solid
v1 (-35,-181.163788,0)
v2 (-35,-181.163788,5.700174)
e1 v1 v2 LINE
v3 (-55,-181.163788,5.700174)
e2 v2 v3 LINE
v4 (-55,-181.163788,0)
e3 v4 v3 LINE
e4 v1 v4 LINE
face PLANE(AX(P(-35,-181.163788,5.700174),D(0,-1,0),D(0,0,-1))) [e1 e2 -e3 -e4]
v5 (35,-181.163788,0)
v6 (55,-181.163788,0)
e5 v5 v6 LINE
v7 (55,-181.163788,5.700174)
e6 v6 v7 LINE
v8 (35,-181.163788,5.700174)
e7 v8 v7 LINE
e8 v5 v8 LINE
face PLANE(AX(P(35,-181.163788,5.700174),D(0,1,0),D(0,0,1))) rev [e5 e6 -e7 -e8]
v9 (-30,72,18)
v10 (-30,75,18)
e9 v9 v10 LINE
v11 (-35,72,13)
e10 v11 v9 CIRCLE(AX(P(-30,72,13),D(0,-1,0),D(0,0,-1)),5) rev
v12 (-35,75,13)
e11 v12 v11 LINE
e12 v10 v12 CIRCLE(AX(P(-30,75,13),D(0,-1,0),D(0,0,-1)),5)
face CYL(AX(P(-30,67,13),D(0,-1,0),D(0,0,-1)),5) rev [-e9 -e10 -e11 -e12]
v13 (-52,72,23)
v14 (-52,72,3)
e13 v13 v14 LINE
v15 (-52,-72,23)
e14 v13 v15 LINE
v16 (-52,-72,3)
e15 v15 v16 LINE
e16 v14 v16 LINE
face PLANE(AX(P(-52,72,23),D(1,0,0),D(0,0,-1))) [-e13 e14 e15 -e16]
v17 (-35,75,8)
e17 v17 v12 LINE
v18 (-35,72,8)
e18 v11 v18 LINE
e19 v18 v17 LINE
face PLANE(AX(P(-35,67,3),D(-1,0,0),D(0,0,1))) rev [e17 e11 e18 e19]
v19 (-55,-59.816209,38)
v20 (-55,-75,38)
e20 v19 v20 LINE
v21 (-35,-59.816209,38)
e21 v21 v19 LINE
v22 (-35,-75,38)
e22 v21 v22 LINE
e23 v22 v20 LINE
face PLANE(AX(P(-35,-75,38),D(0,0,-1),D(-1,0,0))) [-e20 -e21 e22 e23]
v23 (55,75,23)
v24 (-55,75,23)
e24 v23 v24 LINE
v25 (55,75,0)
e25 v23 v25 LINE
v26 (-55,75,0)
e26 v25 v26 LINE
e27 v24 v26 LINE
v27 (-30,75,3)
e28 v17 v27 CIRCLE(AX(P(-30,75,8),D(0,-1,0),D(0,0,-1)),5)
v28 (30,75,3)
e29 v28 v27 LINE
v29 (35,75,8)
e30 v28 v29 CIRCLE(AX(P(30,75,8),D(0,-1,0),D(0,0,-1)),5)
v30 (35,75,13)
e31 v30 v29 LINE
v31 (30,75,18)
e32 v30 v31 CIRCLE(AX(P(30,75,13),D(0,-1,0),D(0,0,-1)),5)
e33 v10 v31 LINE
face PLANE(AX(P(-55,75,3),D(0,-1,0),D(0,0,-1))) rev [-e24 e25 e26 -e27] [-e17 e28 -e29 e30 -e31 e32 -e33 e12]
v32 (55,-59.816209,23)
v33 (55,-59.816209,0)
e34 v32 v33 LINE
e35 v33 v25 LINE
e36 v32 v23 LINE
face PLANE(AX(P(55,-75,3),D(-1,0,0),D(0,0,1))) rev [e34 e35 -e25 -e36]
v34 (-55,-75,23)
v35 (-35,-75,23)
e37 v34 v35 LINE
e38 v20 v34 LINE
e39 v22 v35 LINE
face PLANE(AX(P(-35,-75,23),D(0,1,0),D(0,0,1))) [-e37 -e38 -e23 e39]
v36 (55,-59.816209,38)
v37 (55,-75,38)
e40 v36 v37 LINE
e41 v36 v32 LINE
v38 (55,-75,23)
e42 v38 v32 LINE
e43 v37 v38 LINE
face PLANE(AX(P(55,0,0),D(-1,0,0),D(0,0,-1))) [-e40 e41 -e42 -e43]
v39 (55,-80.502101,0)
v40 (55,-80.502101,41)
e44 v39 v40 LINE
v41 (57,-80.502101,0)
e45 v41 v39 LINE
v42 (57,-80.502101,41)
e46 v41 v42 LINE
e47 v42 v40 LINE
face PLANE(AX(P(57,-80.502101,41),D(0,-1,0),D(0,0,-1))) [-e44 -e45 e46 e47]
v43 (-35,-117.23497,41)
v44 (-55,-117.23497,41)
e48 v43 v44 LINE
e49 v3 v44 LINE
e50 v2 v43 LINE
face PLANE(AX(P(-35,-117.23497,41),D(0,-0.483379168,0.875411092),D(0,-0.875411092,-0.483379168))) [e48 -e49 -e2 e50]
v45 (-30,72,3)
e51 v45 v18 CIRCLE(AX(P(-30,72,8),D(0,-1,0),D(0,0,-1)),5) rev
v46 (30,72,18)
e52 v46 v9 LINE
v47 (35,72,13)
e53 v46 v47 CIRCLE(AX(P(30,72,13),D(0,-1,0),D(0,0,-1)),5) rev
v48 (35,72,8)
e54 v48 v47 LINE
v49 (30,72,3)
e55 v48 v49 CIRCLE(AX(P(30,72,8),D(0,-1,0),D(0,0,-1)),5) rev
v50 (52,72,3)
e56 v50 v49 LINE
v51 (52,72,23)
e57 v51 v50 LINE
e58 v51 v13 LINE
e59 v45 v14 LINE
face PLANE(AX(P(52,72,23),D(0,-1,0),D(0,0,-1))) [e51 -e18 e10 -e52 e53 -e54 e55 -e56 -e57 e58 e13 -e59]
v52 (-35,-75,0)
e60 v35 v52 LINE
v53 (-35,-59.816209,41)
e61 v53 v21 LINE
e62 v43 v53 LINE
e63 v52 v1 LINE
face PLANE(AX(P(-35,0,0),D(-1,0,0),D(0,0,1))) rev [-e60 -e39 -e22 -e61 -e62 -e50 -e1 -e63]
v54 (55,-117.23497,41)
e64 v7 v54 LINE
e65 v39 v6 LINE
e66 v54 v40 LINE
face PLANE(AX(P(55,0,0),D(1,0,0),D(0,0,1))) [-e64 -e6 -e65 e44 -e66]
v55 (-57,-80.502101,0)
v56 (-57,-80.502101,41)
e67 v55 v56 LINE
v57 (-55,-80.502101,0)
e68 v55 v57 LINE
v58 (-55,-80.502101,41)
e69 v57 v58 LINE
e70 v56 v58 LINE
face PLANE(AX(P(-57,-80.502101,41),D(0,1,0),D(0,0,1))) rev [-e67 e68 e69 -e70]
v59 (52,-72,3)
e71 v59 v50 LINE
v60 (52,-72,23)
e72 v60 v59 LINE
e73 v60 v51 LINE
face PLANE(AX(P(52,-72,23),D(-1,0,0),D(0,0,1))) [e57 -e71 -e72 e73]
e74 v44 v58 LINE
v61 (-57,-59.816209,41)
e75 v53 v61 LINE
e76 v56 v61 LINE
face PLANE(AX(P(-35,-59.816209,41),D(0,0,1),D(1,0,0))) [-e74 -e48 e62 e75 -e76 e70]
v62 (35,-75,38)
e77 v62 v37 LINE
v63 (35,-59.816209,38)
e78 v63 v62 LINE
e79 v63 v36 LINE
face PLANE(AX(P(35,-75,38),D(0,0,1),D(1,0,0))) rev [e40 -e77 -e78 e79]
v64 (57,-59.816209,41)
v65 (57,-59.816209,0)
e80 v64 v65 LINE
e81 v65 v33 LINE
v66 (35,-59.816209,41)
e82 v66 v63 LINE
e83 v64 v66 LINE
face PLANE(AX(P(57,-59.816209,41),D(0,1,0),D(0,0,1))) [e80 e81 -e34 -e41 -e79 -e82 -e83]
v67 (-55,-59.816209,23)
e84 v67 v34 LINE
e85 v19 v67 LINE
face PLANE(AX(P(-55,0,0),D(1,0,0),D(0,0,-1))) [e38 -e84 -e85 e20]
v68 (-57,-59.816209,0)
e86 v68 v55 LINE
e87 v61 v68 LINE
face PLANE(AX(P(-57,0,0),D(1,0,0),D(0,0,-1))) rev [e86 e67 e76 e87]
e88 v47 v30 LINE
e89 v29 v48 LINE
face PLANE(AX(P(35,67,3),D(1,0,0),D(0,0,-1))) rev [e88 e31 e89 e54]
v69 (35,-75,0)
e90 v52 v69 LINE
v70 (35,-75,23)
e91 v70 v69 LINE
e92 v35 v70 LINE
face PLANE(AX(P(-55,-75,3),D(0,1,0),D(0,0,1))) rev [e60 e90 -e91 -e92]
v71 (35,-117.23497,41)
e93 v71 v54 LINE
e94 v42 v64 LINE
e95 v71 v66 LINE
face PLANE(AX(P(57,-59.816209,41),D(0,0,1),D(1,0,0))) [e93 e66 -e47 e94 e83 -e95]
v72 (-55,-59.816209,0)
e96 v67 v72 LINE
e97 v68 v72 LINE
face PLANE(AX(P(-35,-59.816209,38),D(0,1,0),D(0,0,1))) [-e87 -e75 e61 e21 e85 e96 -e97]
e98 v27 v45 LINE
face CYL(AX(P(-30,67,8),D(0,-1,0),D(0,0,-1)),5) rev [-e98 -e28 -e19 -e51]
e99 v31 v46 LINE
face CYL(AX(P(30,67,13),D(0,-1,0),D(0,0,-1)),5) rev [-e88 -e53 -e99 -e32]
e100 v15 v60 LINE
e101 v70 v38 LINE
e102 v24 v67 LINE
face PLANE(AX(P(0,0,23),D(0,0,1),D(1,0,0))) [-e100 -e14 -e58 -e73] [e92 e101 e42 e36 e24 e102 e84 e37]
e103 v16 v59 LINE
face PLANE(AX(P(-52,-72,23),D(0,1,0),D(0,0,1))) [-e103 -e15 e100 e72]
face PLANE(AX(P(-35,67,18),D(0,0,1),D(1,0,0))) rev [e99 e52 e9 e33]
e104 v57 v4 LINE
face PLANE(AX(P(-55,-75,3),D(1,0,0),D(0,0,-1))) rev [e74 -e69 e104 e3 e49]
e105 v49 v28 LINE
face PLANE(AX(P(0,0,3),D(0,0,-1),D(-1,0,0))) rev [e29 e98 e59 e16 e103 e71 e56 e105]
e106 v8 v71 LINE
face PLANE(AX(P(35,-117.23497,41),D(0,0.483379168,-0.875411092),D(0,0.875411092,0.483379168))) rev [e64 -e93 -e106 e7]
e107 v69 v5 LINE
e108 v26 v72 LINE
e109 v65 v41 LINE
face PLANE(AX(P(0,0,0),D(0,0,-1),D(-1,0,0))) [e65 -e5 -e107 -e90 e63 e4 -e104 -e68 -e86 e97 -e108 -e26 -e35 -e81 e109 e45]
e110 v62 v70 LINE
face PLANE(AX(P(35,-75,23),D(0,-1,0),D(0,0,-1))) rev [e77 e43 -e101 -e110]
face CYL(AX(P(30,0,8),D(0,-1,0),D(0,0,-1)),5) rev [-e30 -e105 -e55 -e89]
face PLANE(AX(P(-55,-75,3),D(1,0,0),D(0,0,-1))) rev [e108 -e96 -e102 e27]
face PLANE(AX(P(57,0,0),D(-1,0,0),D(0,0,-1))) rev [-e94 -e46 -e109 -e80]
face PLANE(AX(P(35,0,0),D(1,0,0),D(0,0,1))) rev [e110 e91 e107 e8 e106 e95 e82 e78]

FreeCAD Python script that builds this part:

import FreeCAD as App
import Part
import Sketcher
from FreeCAD import Vector
Q = App.Units.Quantity


def edges_at(feature, points):
    """Names of the edges that pass closest to the given points."""
    edges = feature.Shape.Edges
    near = lambda p: min(range(len(edges)), key=lambda i: edges[i].distToShape(Part.Vertex(*p))[0])
    return sorted({f"Edge{near(p) + 1}" for p in points})


def add_polygon(sketch, points):
    """Adds a closed chain of lines whose ends are joined by coincident constraints."""
    first, n = sketch.GeometryCount, len(points)
    for a, b in zip(points, points[1:] + points[:1]):
        sketch.addGeometry(Part.LineSegment(App.Vector(*a, 0), App.Vector(*b, 0)), False)
    for i in range(n):
        sketch.addConstraint(Sketcher.Constraint("Coincident", first + i, 2, first + (i + 1) % n, 1))

doc = App.newDocument("Part")
body = doc.addObject("PartDesign::Body", "Body")

# Sketch on XY plane
sketch1 = body.newObject("Sketcher::SketchObject", "Sketch")
sketch1.AttachmentSupport = (doc.getObject("XY_Plane"), [""])
sketch1.MapMode = "FlatFace"
add_polygon(sketch1, [(-55, 75), (-55, -75), (55, -75), (55, 75)])  # lines 0-3
sketch1.addConstraint(Sketcher.Constraint("Vertical", 0))
sketch1.addConstraint(Sketcher.Constraint("Horizontal", 1))
sketch1.addConstraint(Sketcher.Constraint("Vertical", 2))
sketch1.addConstraint(Sketcher.Constraint("Horizontal", 3))
sketch1.addConstraint(Sketcher.Constraint("Symmetric", 0, 2, 2, 2, -1, 1))
sketch1.addConstraint(Sketcher.Constraint("DistanceX", 1, 1, 1, 2, Q("110 mm")))
sketch1.addConstraint(Sketcher.Constraint("DistanceY", 0, 2, 0, 1, Q("150 mm")))
pad1 = body.newObject("PartDesign::Pad", "Pad")
pad1.Profile = sketch1
pad1.Length = 3

# Sketch on XY plane
sketch2 = body.newObject("Sketcher::SketchObject", "Sketch001")
sketch2.AttachmentSupport = (doc.getObject("XY_Plane"), [""])
sketch2.MapMode = "FlatFace"
sketch2.AttachmentOffset = App.Placement(Vector(0, 0, 3), App.Rotation())
add_polygon(sketch2, [(-55, 75), (-55, -75), (55, -75), (55, 75)])  # lines 0-3
add_polygon(sketch2, [(52, -72), (-52, -72), (-52, 72), (52, 72)])  # lines 4-7
sketch2.addConstraint(Sketcher.Constraint("Vertical", 0))
sketch2.addConstraint(Sketcher.Constraint("Horizontal", 1))
sketch2.addConstraint(Sketcher.Constraint("Vertical", 2))
sketch2.addConstraint(Sketcher.Constraint("Horizontal", 3))
sketch2.addConstraint(Sketcher.Constraint("Horizontal", 4))
sketch2.addConstraint(Sketcher.Constraint("Vertical", 5))
sketch2.addConstraint(Sketcher.Constraint("Horizontal", 6))
sketch2.addConstraint(Sketcher.Constraint("Vertical", 7))
sketch2.addConstraint(Sketcher.Constraint("Symmetric", 0, 2, 2, 2, -1, 1))
sketch2.addConstraint(Sketcher.Constraint("Symmetric", 4, 2, 6, 2, -1, 1))
sketch2.addConstraint(Sketcher.Constraint("DistanceX", 1, 1, 1, 2, Q("110 mm")))
sketch2.addConstraint(Sketcher.Constraint("DistanceX", 4, 2, 4, 1, Q("104 mm")))
sketch2.addConstraint(Sketcher.Constraint("DistanceY", 0, 2, 0, 1, Q("150 mm")))
sketch2.addConstraint(Sketcher.Constraint("DistanceY", 5, 1, 5, 2, Q("144 mm")))
pad2 = body.newObject("PartDesign::Pad", "Pad001")
pad2.Profile = sketch2
pad2.Length = 20

# Sketch on YZ plane
sketch3 = body.newObject("Sketcher::SketchObject", "Sketch002")
sketch3.AttachmentSupport = (doc.getObject("YZ_Plane"), [""])
sketch3.MapMode = "FlatFace"
sketch3.AttachmentOffset = App.Placement(Vector(0, 0, -55), App.Rotation())
add_polygon(sketch3, [(-75, 38), (-75, 0), (-181.163788, 0), (-181.163788, 5.700174), (-117.23497, 41), (-59.816209, 41), (-59.816209, 38)])  # lines 0-6
sketch3.addConstraint(Sketcher.Constraint("Vertical", 0))
sketch3.addConstraint(Sketcher.Constraint("Horizontal", 1))
sketch3.addConstraint(Sketcher.Constraint("Vertical", 2))
sketch3.addConstraint(Sketcher.Constraint("Horizontal", 4))
sketch3.addConstraint(Sketcher.Constraint("Vertical", 5))
sketch3.addConstraint(Sketcher.Constraint("Horizontal", 6))
sketch3.addConstraint(Sketcher.Constraint("PointOnObject", 0, 2, -1))
sketch3.addConstraint(Sketcher.Constraint("DistanceY", 0, 2, 0, 1, Q("38 mm")))
sketch3.addConstraint(Sketcher.Constraint("DistanceY", 5, 2, 5, 1, Q("3 mm")))
sketch3.addConstraint(Sketcher.Constraint("DistanceX", 0, 2, -1, 1, Q("75 mm")))
sketch3.addConstraint(Sketcher.Constraint("DistanceX", 4, 1, 4, 2, Q("57.418761 mm")))
sketch3.addConstraint(Sketcher.Constraint("DistanceX", 6, 2, 6, 1, Q("15.183791 mm")))
sketch3.addConstraint(Sketcher.Constraint("DistanceX", 1, 2, 1, 1, Q("106.163788 mm")))
sketch3.addConstraint(Sketcher.Constraint("DistanceY", 2, 1, 2, 2, Q("5.700174 mm")))
pad3 = body.newObject("PartDesign::Pad", "Pad002")
pad3.Profile = sketch3
pad3.Length = 20

# Sketch on YZ plane
sketch4 = body.newObject("Sketcher::SketchObject", "Sketch003")
sketch4.AttachmentSupport = (doc.getObject("YZ_Plane"), [""])
sketch4.MapMode = "FlatFace"
sketch4.AttachmentOffset = App.Placement(Vector(0, 0, -55), App.Rotation())
add_polygon(sketch4, [(-59.816209, 0), (-80.502101, 0), (-80.502101, 41), (-59.816209, 41)])  # lines 0-3
sketch4.addConstraint(Sketcher.Constraint("Horizontal", 0))
sketch4.addConstraint(Sketcher.Constraint("Vertical", 1))
sketch4.addConstraint(Sketcher.Constraint("Horizontal", 2))
sketch4.addConstraint(Sketcher.Constraint("Vertical", 3))
sketch4.addConstraint(Sketcher.Constraint("PointOnObject", 0, 2, -1))
sketch4.addConstraint(Sketcher.Constraint("DistanceY", 1, 1, 1, 2, Q("41 mm")))
sketch4.addConstraint(Sketcher.Constraint("DistanceX", 0, 2, 0, 1, Q("20.685892 mm")))
sketch4.addConstraint(Sketcher.Constraint("DistanceX", 0, 2, -1, 1, Q("80.502101 mm")))
pad4 = body.newObject("PartDesign::Pad", "Pad003")
pad4.Profile = sketch4
pad4.Length = 2
pad4.Reversed = True

# Sketch on XZ plane
sketch5 = body.newObject("Sketcher::SketchObject", "Sketch004")
sketch5.AttachmentSupport = (doc.getObject("XZ_Plane"), [""])
sketch5.MapMode = "FlatFace"
sketch5.AttachmentOffset = App.Placement(Vector(0, 0, -75), App.Rotation())
add_polygon(sketch5, [(-35, 3), (-35, 18), (35, 18), (35, 3)])  # lines 0-3
sketch5.addConstraint(Sketcher.Constraint("Vertical", 0))
sketch5.addConstraint(Sketcher.Constraint("Horizontal", 1))
sketch5.addConstraint(Sketcher.Constraint("Vertical", 2))
sketch5.addConstraint(Sketcher.Constraint("Horizontal", 3))
sketch5.addConstraint(Sketcher.Constraint("DistanceX", 1, 1, 1, 2, Q("70 mm")))
sketch5.addConstraint(Sketcher.Constraint("DistanceY", 0, 1, 0, 2, Q("15 mm")))
sketch5.addConstraint(Sketcher.Constraint("DistanceX", 0, 2, -1, 1, Q("35 mm")))
sketch5.addConstraint(Sketcher.Constraint("DistanceY", -1, 1, 0, 2, Q("18 mm")))
pocket1 = body.newObject("PartDesign::Pocket", "Pocket")
pocket1.Profile = sketch5
pocket1.Length = 8
pocket1.Reversed = True
doc.recompute()

fillet = body.newObject("PartDesign::Fillet", "Fillet")
fillet.Base = (pocket1, edges_at(pocket1, [
    (-35, 73.5, 18),
    (-35, 73.5, 3),
    (35, 73.5, 3),
    (35, 73.5, 18),
]))
fillet.Radius = 5
doc.recompute()

mirrored = body.newObject("PartDesign::Mirrored", "Mirrored")
mirrored.Originals = [pad4]
mirrored.MirrorPlane = (doc.getObject("YZ_Plane"), [""])
body.Tip = mirrored
doc.recompute()

mirrored2 = body.newObject("PartDesign::Mirrored", "Mirrored001")
mirrored2.Originals = [pad3]
mirrored2.MirrorPlane = (doc.getObject("YZ_Plane"), [""])
body.Tip = mirrored2

doc.recompute()
